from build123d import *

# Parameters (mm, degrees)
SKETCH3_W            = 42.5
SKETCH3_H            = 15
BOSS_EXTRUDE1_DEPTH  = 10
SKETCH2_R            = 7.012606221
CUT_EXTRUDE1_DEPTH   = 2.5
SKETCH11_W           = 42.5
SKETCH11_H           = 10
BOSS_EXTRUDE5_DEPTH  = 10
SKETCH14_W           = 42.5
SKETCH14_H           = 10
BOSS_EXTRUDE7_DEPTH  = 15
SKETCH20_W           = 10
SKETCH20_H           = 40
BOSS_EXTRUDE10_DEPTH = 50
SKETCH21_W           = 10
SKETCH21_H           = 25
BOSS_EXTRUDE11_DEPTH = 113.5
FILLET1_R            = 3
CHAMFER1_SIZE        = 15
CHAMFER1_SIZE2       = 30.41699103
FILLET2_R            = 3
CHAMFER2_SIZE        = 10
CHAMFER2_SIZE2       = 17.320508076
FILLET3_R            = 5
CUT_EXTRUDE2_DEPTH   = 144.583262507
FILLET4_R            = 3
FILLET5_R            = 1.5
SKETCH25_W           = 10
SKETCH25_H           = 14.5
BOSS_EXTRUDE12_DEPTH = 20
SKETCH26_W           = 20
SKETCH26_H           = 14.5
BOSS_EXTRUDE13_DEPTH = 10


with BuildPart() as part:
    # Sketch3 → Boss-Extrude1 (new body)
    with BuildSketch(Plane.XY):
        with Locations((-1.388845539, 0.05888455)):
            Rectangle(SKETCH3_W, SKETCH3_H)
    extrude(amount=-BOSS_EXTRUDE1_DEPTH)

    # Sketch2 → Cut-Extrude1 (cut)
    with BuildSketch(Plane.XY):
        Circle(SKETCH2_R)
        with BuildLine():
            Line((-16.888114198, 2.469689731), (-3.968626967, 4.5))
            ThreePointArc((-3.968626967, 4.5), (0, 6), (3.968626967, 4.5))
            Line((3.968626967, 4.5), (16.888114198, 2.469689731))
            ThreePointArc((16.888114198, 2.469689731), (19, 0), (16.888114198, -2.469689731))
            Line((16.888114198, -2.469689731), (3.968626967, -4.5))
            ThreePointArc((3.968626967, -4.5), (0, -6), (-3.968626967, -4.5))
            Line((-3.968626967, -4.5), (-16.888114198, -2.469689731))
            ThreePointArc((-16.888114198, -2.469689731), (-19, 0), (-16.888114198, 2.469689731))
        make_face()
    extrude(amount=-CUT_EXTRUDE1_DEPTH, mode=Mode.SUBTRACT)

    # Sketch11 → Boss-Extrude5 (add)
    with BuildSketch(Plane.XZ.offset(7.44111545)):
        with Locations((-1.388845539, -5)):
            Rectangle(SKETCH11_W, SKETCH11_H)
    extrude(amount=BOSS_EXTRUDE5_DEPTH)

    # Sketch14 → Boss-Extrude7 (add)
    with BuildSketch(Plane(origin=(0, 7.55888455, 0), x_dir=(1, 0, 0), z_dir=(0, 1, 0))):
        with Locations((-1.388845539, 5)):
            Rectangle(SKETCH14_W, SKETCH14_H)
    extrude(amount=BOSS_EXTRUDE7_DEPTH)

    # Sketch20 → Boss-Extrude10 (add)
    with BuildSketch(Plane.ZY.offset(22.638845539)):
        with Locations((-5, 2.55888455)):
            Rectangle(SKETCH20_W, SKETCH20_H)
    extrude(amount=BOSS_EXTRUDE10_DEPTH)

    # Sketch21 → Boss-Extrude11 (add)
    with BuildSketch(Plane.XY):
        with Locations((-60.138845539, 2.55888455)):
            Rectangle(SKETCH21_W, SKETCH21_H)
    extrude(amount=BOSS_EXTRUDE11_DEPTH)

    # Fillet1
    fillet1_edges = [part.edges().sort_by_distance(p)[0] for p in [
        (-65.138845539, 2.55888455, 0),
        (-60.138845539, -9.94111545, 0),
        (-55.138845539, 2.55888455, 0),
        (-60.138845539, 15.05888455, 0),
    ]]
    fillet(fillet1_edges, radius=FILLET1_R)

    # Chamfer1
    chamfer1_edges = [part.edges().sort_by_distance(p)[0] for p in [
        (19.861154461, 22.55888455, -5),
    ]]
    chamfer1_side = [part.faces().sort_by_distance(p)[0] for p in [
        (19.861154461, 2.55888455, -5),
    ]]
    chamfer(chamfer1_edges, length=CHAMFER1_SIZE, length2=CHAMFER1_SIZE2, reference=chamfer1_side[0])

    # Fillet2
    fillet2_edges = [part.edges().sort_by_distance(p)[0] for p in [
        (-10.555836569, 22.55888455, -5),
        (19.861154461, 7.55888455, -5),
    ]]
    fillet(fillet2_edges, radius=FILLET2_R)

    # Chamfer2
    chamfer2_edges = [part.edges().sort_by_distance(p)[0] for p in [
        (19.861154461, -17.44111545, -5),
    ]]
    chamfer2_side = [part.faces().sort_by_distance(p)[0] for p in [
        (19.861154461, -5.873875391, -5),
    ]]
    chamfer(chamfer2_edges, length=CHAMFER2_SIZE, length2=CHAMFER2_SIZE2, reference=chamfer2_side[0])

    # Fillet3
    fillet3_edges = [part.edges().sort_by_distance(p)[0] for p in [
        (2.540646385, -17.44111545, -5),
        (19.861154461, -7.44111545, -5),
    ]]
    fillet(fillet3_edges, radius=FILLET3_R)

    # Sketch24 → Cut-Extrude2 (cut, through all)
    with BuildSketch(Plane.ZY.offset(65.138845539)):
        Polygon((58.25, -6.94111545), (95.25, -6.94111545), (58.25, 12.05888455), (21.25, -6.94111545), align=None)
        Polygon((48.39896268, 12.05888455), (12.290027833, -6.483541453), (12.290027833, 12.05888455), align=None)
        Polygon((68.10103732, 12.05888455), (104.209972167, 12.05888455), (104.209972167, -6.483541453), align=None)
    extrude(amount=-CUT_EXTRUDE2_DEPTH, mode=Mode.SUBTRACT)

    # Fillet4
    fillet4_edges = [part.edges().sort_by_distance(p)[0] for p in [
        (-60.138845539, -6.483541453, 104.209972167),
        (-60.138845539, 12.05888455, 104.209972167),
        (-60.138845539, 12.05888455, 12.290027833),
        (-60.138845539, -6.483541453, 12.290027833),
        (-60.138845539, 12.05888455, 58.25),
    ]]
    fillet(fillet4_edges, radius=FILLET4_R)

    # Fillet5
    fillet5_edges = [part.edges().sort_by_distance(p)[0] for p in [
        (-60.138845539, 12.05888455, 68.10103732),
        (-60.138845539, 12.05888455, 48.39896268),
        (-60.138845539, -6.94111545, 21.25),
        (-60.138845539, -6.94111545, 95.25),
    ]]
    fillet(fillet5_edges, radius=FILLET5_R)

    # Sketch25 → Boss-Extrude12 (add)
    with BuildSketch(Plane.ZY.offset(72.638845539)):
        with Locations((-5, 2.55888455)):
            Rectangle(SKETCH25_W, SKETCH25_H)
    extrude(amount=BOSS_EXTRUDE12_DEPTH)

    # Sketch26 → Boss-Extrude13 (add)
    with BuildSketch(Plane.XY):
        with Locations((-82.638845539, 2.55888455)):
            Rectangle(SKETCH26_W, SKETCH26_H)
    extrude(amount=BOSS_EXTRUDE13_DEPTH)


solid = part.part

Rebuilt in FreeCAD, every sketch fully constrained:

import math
import FreeCAD as App
import Part
import Sketcher
from FreeCAD import Vector
Q = App.Units.Quantity


def edges_at(feature, points):
    """Names of the edges that pass closest to the given points."""
    edges = feature.Shape.Edges
    near = lambda p: min(range(len(edges)), key=lambda i: edges[i].distToShape(Part.Vertex(*p))[0])
    return sorted({f"Edge{near(p) + 1}" for p in points})

doc = App.newDocument("Part")
params = doc.addObject("Spreadsheet::Sheet", "Params")
for row, (alias, value) in enumerate([
    ("sketch1_height", "15 mm"),
    ("sketch1_width", "42.5 mm"),
    ("pad1_length", "10 mm"),
    ("sketch2_radius", "2.5 mm"),
    ("pocket1_length", "2.5 mm"),
    ("sketch3_height", "10 mm"),
    ("sketch3_width", "42.5 mm"),
    ("pad2_length", "10 mm"),
    ("sketch4_height", "10 mm"),
    ("sketch4_width", "42.5 mm"),
    ("pad3_length", "15 mm"),
    ("sketch5_width", "40 mm"),
    ("sketch5_height", "10 mm"),
    ("pad4_length", "50 mm"),
    ("sketch6_width", "10 mm"),
    ("sketch6_height", "25 mm"),
    ("pad5_length", "113.5 mm"),
    ("fillet_radius", "3 mm"),
    ("chamfer_size", "15 mm"),
    ("chamfer_size2", "30.416991 mm"),
    ("fillet2_radius", "3 mm"),
    ("chamfer2_size", "10 mm"),
    ("chamfer2_size2", "17.320508 mm"),
    ("fillet3_radius", "5 mm"),
    ("sketch7_height", "74 mm"),
    ("fillet4_radius", "3 mm"),
    ("fillet5_radius", "1.5 mm"),
    ("sketch8_height", "10 mm"),
    ("sketch8_width", "14.5 mm"),
    ("pad6_length", "20 mm"),
    ("sketch9_width", "20 mm"),
    ("sketch9_height", "14.5 mm"),
    ("pad7_length", "10 mm"),
], start=1):
    params.set(f"A{row}", alias)
    params.set(f"B{row}", "=" + value)
    params.setAlias(f"B{row}", alias)

body = doc.addObject("PartDesign::Body", "Body")

# Sketch on XY plane
sketch1 = body.newObject("Sketcher::SketchObject", "Sketch")
sketch1.AttachmentSupport = (doc.getObject("XY_Plane"), [""])
sketch1.MapMode = "FlatFace"
sketch1.addGeometry(Part.LineSegment(Vector(-23, 8, 0), Vector(-23, -7, 0)), False)
sketch1.addGeometry(Part.LineSegment(Vector(-23, -7, 0), Vector(20, -7, 0)), False)
sketch1.addGeometry(Part.LineSegment(Vector(20, -7, 0), Vector(20, 8, 0)), False)
sketch1.addGeometry(Part.LineSegment(Vector(20, 8, 0), Vector(-23, 8, 0)), False)
sketch1.addConstraint(Sketcher.Constraint("Coincident", 0, 2, 1, 1))
sketch1.addConstraint(Sketcher.Constraint("Coincident", 1, 2, 2, 1))
sketch1.addConstraint(Sketcher.Constraint("Coincident", 2, 2, 3, 1))
sketch1.addConstraint(Sketcher.Constraint("Coincident", 3, 2, 0, 1))
sketch1.addConstraint(Sketcher.Constraint("Vertical", 0))
sketch1.addConstraint(Sketcher.Constraint("Horizontal", 1))
sketch1.addConstraint(Sketcher.Constraint("Vertical", 2))
sketch1.addConstraint(Sketcher.Constraint("Horizontal", 3))
sketch1.addConstraint(Sketcher.Constraint("DistanceY", 0, 2, 0, 1, Q("15 mm")))
sketch1.addConstraint(Sketcher.Constraint("DistanceX", 1, 1, 1, 2, Q("42.5 mm")))
sketch1.addConstraint(Sketcher.Constraint("DistanceX", 0, 2, -1, 1, Q("22.638846 mm")))
sketch1.addConstraint(Sketcher.Constraint("DistanceY", 0, 2, -1, 1, Q("7.441115 mm")))
sketch1.setExpression("Constraints[8]", "Params.sketch1_height")
sketch1.setExpression("Constraints[9]", "Params.sketch1_width")
pad1 = body.newObject("PartDesign::Pad", "Pad")
pad1.Profile = sketch1
pad1.setExpression("Length", "Params.pad1_length")
pad1.Reversed = True

# Sketch on XY plane
sketch2 = body.newObject("Sketcher::SketchObject", "Sketch001")
sketch2.AttachmentSupport = (doc.getObject("XY_Plane"), [""])
sketch2.MapMode = "FlatFace"
sketch2.addGeometry(Part.ArcOfCircle(Part.Circle(Vector(16.5, 0, 0), Vector(0, 0, 1), 2.5), math.radians(-81), math.radians(81)), False)
sketch2.addGeometry(Part.LineSegment(Vector(16.9, 2.5, 0), Vector(5.6, 4.2, 0)), False)
sketch2.addGeometry(Part.ArcOfCircle(Part.Circle(Vector(0, 0, 0), Vector(0, 0, 1), 7), math.radians(37), math.radians(143)), False)
sketch2.addGeometry(Part.LineSegment(Vector(-5.6, 4.2, 0), Vector(-16.9, 2.5, 0)), False)
sketch2.addGeometry(Part.ArcOfCircle(Part.Circle(Vector(-16.5, 0, 0), Vector(0, 0, 1), 2.5), math.radians(99), math.radians(261)), False)
sketch2.addGeometry(Part.LineSegment(Vector(-16.9, -2.5, 0), Vector(-5.6, -4.2, 0)), False)
sketch2.addGeometry(Part.ArcOfCircle(Part.Circle(Vector(0, 0, 0), Vector(0, 0, 1), 7), math.radians(-143), math.radians(-37)), False)
sketch2.addGeometry(Part.LineSegment(Vector(5.6, -4.2, 0), Vector(16.9, -2.5, 0)), False)
sketch2.addConstraint(Sketcher.Constraint("Tangent", 0, 2, 1, 1))
sketch2.addConstraint(Sketcher.Constraint("Coincident", 1, 2, 2, 1))
sketch2.addConstraint(Sketcher.Constraint("Coincident", 2, 2, 3, 1))
sketch2.addConstraint(Sketcher.Constraint("Tangent", 3, 2, 4, 1))
sketch2.addConstraint(Sketcher.Constraint("Tangent", 4, 2, 5, 1))
sketch2.addConstraint(Sketcher.Constraint("Coincident", 5, 2, 6, 1))
sketch2.addConstraint(Sketcher.Constraint("Coincident", 6, 2, 7, 1))
sketch2.addConstraint(Sketcher.Constraint("Tangent", 7, 2, 0, 1))
sketch2.addConstraint(Sketcher.Constraint("Coincident", 2, 3, -1, 1))
sketch2.addConstraint(Sketcher.Constraint("Coincident", 6, 3, -1, 1))
sketch2.addConstraint(Sketcher.Constraint("Equal", 0, 4))
sketch2.addConstraint(Sketcher.Constraint("Equal", 2, 6))
sketch2.addConstraint(Sketcher.Constraint("Symmetric", 0, 3, 4, 3, -1, 1))
sketch2.addConstraint(Sketcher.Constraint("Symmetric", 0, 2, 3, 2, -2))
sketch2.addConstraint(Sketcher.Constraint("Parallel", 1, 5))
sketch2.addConstraint(Sketcher.Constraint("Parallel", 3, 7))
sketch2.addConstraint(Sketcher.Constraint("Radius", 0, Q("2.5 mm")))
sketch2.addConstraint(Sketcher.Constraint("DistanceX", 4, 3, 0, 3, Q("33 mm")))
sketch2.addConstraint(Sketcher.Constraint("Radius", 2, Q("7.012606 mm")))
sketch2.addConstraint(Sketcher.Constraint("DistanceY", 0, 2, 1, 2, Q("1.776999 mm")))
sketch2.setExpression("Constraints[16]", "Params.sketch2_radius")
pocket1 = body.newObject("PartDesign::Pocket", "Pocket")
pocket1.Profile = sketch2
pocket1.setExpression("Length", "Params.pocket1_length")

# Sketch on XZ plane
sketch3 = body.newObject("Sketcher::SketchObject", "Sketch002")
sketch3.AttachmentSupport = (doc.getObject("XZ_Plane"), [""])
sketch3.MapMode = "FlatFace"
sketch3.AttachmentOffset = App.Placement(Vector(0, 0, 7.441115), App.Rotation())
sketch3.addGeometry(Part.LineSegment(Vector(-23, 0, 0), Vector(-23, -10, 0)), False)
sketch3.addGeometry(Part.LineSegment(Vector(-23, -10, 0), Vector(20, -10, 0)), False)
sketch3.addGeometry(Part.LineSegment(Vector(20, -10, 0), Vector(20, 0, 0)), False)
sketch3.addGeometry(Part.LineSegment(Vector(20, 0, 0), Vector(-23, 0, 0)), False)
sketch3.addConstraint(Sketcher.Constraint("Coincident", 0, 2, 1, 1))
sketch3.addConstraint(Sketcher.Constraint("Coincident", 1, 2, 2, 1))
sketch3.addConstraint(Sketcher.Constraint("Coincident", 2, 2, 3, 1))
sketch3.addConstraint(Sketcher.Constraint("Coincident", 3, 2, 0, 1))
sketch3.addConstraint(Sketcher.Constraint("Vertical", 0))
sketch3.addConstraint(Sketcher.Constraint("Horizontal", 1))
sketch3.addConstraint(Sketcher.Constraint("Vertical", 2))
sketch3.addConstraint(Sketcher.Constraint("Horizontal", 3))
sketch3.addConstraint(Sketcher.Constraint("PointOnObject", 2, 2, -1))
sketch3.addConstraint(Sketcher.Constraint("DistanceY", 0, 2, 0, 1, Q("10 mm")))
sketch3.addConstraint(Sketcher.Constraint("DistanceX", 1, 1, 1, 2, Q("42.5 mm")))
sketch3.addConstraint(Sketcher.Constraint("DistanceX", 0, 2, -1, 1, Q("22.638846 mm")))
sketch3.setExpression("Constraints[9]", "Params.sketch3_height")
sketch3.setExpression("Constraints[10]", "Params.sketch3_width")
pad2 = body.newObject("PartDesign::Pad", "Pad001")
pad2.Profile = sketch3
pad2.setExpression("Length", "Params.pad2_length")

# Sketch on XZ plane
sketch4 = body.newObject("Sketcher::SketchObject", "Sketch003")
sketch4.AttachmentSupport = (doc.getObject("XZ_Plane"), [""])
sketch4.MapMode = "FlatFace"
sketch4.AttachmentOffset = App.Placement(Vector(0, 0, -7.558885), App.Rotation())
sketch4.addGeometry(Part.LineSegment(Vector(-23, -10, 0), Vector(-23, 0, 0)), False)
sketch4.addGeometry(Part.LineSegment(Vector(-23, 0, 0), Vector(20, 0, 0)), False)
sketch4.addGeometry(Part.LineSegment(Vector(20, 0, 0), Vector(20, -10, 0)), False)
sketch4.addGeometry(Part.LineSegment(Vector(20, -10, 0), Vector(-23, -10, 0)), False)
sketch4.addConstraint(Sketcher.Constraint("Coincident", 0, 2, 1, 1))
sketch4.addConstraint(Sketcher.Constraint("Coincident", 1, 2, 2, 1))
sketch4.addConstraint(Sketcher.Constraint("Coincident", 2, 2, 3, 1))
sketch4.addConstraint(Sketcher.Constraint("Coincident", 3, 2, 0, 1))
sketch4.addConstraint(Sketcher.Constraint("Vertical", 0))
sketch4.addConstraint(Sketcher.Constraint("Horizontal", 1))
sketch4.addConstraint(Sketcher.Constraint("Vertical", 2))
sketch4.addConstraint(Sketcher.Constraint("Horizontal", 3))
sketch4.addConstraint(Sketcher.Constraint("PointOnObject", 0, 2, -1))
sketch4.addConstraint(Sketcher.Constraint("DistanceY", 0, 1, 0, 2, Q("10 mm")))
sketch4.addConstraint(Sketcher.Constraint("DistanceX", 1, 1, 1, 2, Q("42.5 mm")))
sketch4.addConstraint(Sketcher.Constraint("DistanceX", 0, 2, -1, 1, Q("22.638846 mm")))
sketch4.setExpression("Constraints[9]", "Params.sketch4_height")
sketch4.setExpression("Constraints[10]", "Params.sketch4_width")
pad3 = body.newObject("PartDesign::Pad", "Pad002")
pad3.Profile = sketch4
pad3.setExpression("Length", "Params.pad3_length")
pad3.Reversed = True

# Sketch on YZ plane
sketch5 = body.newObject("Sketcher::SketchObject", "Sketch004")
sketch5.AttachmentSupport = (doc.getObject("YZ_Plane"), [""])
sketch5.MapMode = "FlatFace"
sketch5.AttachmentOffset = App.Placement(Vector(0, 0, -22.638846), App.Rotation())
sketch5.addGeometry(Part.LineSegment(Vector(23, -10, 0), Vector(-17, -10, 0)), False)
sketch5.addGeometry(Part.LineSegment(Vector(-17, -10, 0), Vector(-17, 0, 0)), False)
sketch5.addGeometry(Part.LineSegment(Vector(-17, 0, 0), Vector(23, 0, 0)), False)
sketch5.addGeometry(Part.LineSegment(Vector(23, 0, 0), Vector(23, -10, 0)), False)
sketch5.addConstraint(Sketcher.Constraint("Coincident", 0, 2, 1, 1))
sketch5.addConstraint(Sketcher.Constraint("Coincident", 1, 2, 2, 1))
sketch5.addConstraint(Sketcher.Constraint("Coincident", 2, 2, 3, 1))
sketch5.addConstraint(Sketcher.Constraint("Coincident", 3, 2, 0, 1))
sketch5.addConstraint(Sketcher.Constraint("Horizontal", 0))
sketch5.addConstraint(Sketcher.Constraint("Vertical", 1))
sketch5.addConstraint(Sketcher.Constraint("Horizontal", 2))
sketch5.addConstraint(Sketcher.Constraint("Vertical", 3))
sketch5.addConstraint(Sketcher.Constraint("PointOnObject", 1, 2, -1))
sketch5.addConstraint(Sketcher.Constraint("DistanceX", 0, 2, 0, 1, Q("40 mm")))
sketch5.addConstraint(Sketcher.Constraint("DistanceY", 1, 1, 1, 2, Q("10 mm")))
sketch5.addConstraint(Sketcher.Constraint("DistanceX", 0, 2, -1, 1, Q("17.441115 mm")))
sketch5.setExpression("Constraints[9]", "Params.sketch5_width")
sketch5.setExpression("Constraints[10]", "Params.sketch5_height")
pad4 = body.newObject("PartDesign::Pad", "Pad003")
pad4.Profile = sketch5
pad4.setExpression("Length", "Params.pad4_length")
pad4.Reversed = True

# Sketch on XY plane
sketch6 = body.newObject("Sketcher::SketchObject", "Sketch005")
sketch6.AttachmentSupport = (doc.getObject("XY_Plane"), [""])
sketch6.MapMode = "FlatFace"
sketch6.addGeometry(Part.LineSegment(Vector(-65, 15, 0), Vector(-65, -10, 0)), False)
sketch6.addGeometry(Part.LineSegment(Vector(-65, -10, 0), Vector(-55, -10, 0)), False)
sketch6.addGeometry(Part.LineSegment(Vector(-55, -10, 0), Vector(-55, 15, 0)), False)
sketch6.addGeometry(Part.LineSegment(Vector(-55, 15, 0), Vector(-65, 15, 0)), False)
sketch6.addConstraint(Sketcher.Constraint("Coincident", 0, 2, 1, 1))
sketch6.addConstraint(Sketcher.Constraint("Coincident", 1, 2, 2, 1))
sketch6.addConstraint(Sketcher.Constraint("Coincident", 2, 2, 3, 1))
sketch6.addConstraint(Sketcher.Constraint("Coincident", 3, 2, 0, 1))
sketch6.addConstraint(Sketcher.Constraint("Vertical", 0))
sketch6.addConstraint(Sketcher.Constraint("Horizontal", 1))
sketch6.addConstraint(Sketcher.Constraint("Vertical", 2))
sketch6.addConstraint(Sketcher.Constraint("Horizontal", 3))
sketch6.addConstraint(Sketcher.Constraint("DistanceX", 1, 1, 1, 2, Q("10 mm")))
sketch6.addConstraint(Sketcher.Constraint("DistanceY", 0, 2, 0, 1, Q("25 mm")))
sketch6.addConstraint(Sketcher.Constraint("DistanceX", 0, 2, -1, 1, Q("65.138846 mm")))
sketch6.addConstraint(Sketcher.Constraint("DistanceY", 0, 2, -1, 1, Q("9.941115 mm")))
sketch6.setExpression("Constraints[8]", "Params.sketch6_width")
sketch6.setExpression("Constraints[9]", "Params.sketch6_height")
pad5 = body.newObject("PartDesign::Pad", "Pad004")
pad5.Profile = sketch6
pad5.setExpression("Length", "Params.pad5_length")
doc.recompute()

fillet = body.newObject("PartDesign::Fillet", "Fillet")
fillet.Base = (pad5, edges_at(pad5, [
    (-65.139, 2.559, 0),
    (-60.139, -9.941, 0),
    (-55.139, 2.559, 0),
    (-60.139, 15.059, 0),
]))
fillet.setExpression("Radius", "Params.fillet_radius")
doc.recompute()

chamfer = body.newObject("PartDesign::Chamfer", "Chamfer")
chamfer.Base = (fillet, edges_at(fillet, [(19.861, 22.559, -5)]))
chamfer.ChamferType = "Two distances"
chamfer.setExpression("Size", "Params.chamfer_size")
chamfer.setExpression("Size2", "Params.chamfer_size2")
doc.recompute()

fillet2 = body.newObject("PartDesign::Fillet", "Fillet001")
fillet2.Base = (chamfer, edges_at(chamfer, [(-10.556, 22.559, -5), (19.861, 7.559, -5)]))
fillet2.setExpression("Radius", "Params.fillet2_radius")
doc.recompute()

chamfer2 = body.newObject("PartDesign::Chamfer", "Chamfer001")
chamfer2.Base = (fillet2, edges_at(fillet2, [(19.861, -17.441, -5)]))
chamfer2.ChamferType = "Two distances"
chamfer2.setExpression("Size", "Params.chamfer2_size")
chamfer2.setExpression("Size2", "Params.chamfer2_size2")
doc.recompute()

fillet3 = body.newObject("PartDesign::Fillet", "Fillet002")
fillet3.Base = (chamfer2, edges_at(chamfer2, [(2.541, -17.441, -5), (19.861, -7.441, -5)]))
fillet3.setExpression("Radius", "Params.fillet3_radius")

# Sketch on YZ plane
sketch7 = body.newObject("Sketcher::SketchObject", "Sketch006")
sketch7.AttachmentSupport = (doc.getObject("YZ_Plane"), [""])
sketch7.MapMode = "FlatFace"
sketch7.AttachmentOffset = App.Placement(Vector(0, 0, -65.138846), App.Rotation())
sketch7.addGeometry(Part.LineSegment(Vector(-7, 95, 0), Vector(12, 58, 0)), False)
sketch7.addGeometry(Part.LineSegment(Vector(12, 58, 0), Vector(-7, 21, 0)), False)
sketch7.addGeometry(Part.LineSegment(Vector(-7, 21, 0), Vector(-7, 95, 0)), False)
sketch7.addGeometry(Part.LineSegment(Vector(-6, 12, 0), Vector(12, 48, 0)), False)
sketch7.addGeometry(Part.LineSegment(Vector(12, 48, 0), Vector(12, 12, 0)), False)
sketch7.addGeometry(Part.LineSegment(Vector(12, 12, 0), Vector(-6, 12, 0)), False)
sketch7.addGeometry(Part.LineSegment(Vector(12, 104, 0), Vector(12, 68, 0)), False)
sketch7.addGeometry(Part.LineSegment(Vector(12, 68, 0), Vector(-6, 104, 0)), False)
sketch7.addGeometry(Part.LineSegment(Vector(-6, 104, 0), Vector(12, 104, 0)), False)
sketch7.addConstraint(Sketcher.Constraint("Coincident", 0, 2, 1, 1))
sketch7.addConstraint(Sketcher.Constraint("Coincident", 1, 2, 2, 1))
sketch7.addConstraint(Sketcher.Constraint("Coincident", 2, 2, 0, 1))
sketch7.addConstraint(Sketcher.Constraint("Coincident", 3, 2, 4, 1))
sketch7.addConstraint(Sketcher.Constraint("Coincident", 4, 2, 5, 1))
sketch7.addConstraint(Sketcher.Constraint("Coincident", 5, 2, 3, 1))
sketch7.addConstraint(Sketcher.Constraint("Coincident", 6, 2, 7, 1))
sketch7.addConstraint(Sketcher.Constraint("Coincident", 7, 2, 8, 1))
sketch7.addConstraint(Sketcher.Constraint("Coincident", 8, 2, 6, 1))
sketch7.addConstraint(Sketcher.Constraint("Vertical", 2))
sketch7.addConstraint(Sketcher.Constraint("Vertical", 4))
sketch7.addConstraint(Sketcher.Constraint("Horizontal", 5))
sketch7.addConstraint(Sketcher.Constraint("Vertical", 6))
sketch7.addConstraint(Sketcher.Constraint("Horizontal", 8))
sketch7.addConstraint(Sketcher.Constraint("Parallel", 1, 3))
sketch7.addConstraint(Sketcher.Constraint("Parallel", 0, 7))
sketch7.addConstraint(Sketcher.Constraint("Vertical", 0, 2, 3, 2))
sketch7.addConstraint(Sketcher.Constraint("Vertical", 4, 2, 6, 2))
sketch7.addConstraint(Sketcher.Constraint("Vertical", 5, 2, 7, 2))
sketch7.addConstraint(Sketcher.Constraint("Equal", 4, 6))
sketch7.addConstraint(Sketcher.Constraint("DistanceY", 2, 1, 2, 2, Q("74 mm")))
sketch7.addConstraint(Sketcher.Constraint("DistanceX", 1, 2, 0, 2, Q("19 mm")))
sketch7.addConstraint(Sketcher.Constraint("DistanceY", -1, 1, 0, 2, Q("58.25 mm")))
sketch7.addConstraint(Sketcher.Constraint("DistanceX", 5, 2, 5, 1, Q("18.542426 mm")))
sketch7.addConstraint(Sketcher.Constraint("DistanceX", 5, 2, -1, 1, Q("6.483541 mm")))
sketch7.addConstraint(Sketcher.Constraint("DistanceY", 4, 2, 6, 2, Q("55.811009 mm")))
sketch7.addConstraint(Sketcher.Constraint("DistanceY", -1, 1, 3, 2, Q("48.398963 mm")))
sketch7.setExpression("Constraints[20]", "Params.sketch7_height")
pocket2 = body.newObject("PartDesign::Pocket", "Pocket001")
pocket2.Profile = sketch7
pocket2.Type = "ThroughAll"
pocket2.Reversed = True
doc.recompute()

fillet4 = body.newObject("PartDesign::Fillet", "Fillet003")
fillet4.Base = (pocket2, edges_at(pocket2, [
    (-60.139, -6.484, 104.21),
    (-60.139, 12.059, 104.21),
    (-60.139, 12.059, 12.29),
    (-60.139, -6.484, 12.29),
    (-60.139, 12.059, 58.25),
]))
fillet4.setExpression("Radius", "Params.fillet4_radius")
doc.recompute()

fillet5 = body.newObject("PartDesign::Fillet", "Fillet004")
fillet5.Base = (fillet4, edges_at(fillet4, [
    (-60.139, 12.059, 68.101),
    (-60.139, 12.059, 48.399),
    (-60.139, -6.941, 21.25),
    (-60.139, -6.941, 95.25),
]))
fillet5.setExpression("Radius", "Params.fillet5_radius")

# Sketch on YZ plane
sketch8 = body.newObject("Sketcher::SketchObject", "Sketch007")
sketch8.AttachmentSupport = (doc.getObject("YZ_Plane"), [""])
sketch8.MapMode = "FlatFace"
sketch8.AttachmentOffset = App.Placement(Vector(0, 0, -72.638846), App.Rotation())
sketch8.addGeometry(Part.LineSegment(Vector(10, -10, 0), Vector(-5, -10, 0)), False)
sketch8.addGeometry(Part.LineSegment(Vector(-5, -10, 0), Vector(-5, 0, 0)), False)
sketch8.addGeometry(Part.LineSegment(Vector(-5, 0, 0), Vector(10, 0, 0)), False)
sketch8.addGeometry(Part.LineSegment(Vector(10, 0, 0), Vector(10, -10, 0)), False)
sketch8.addConstraint(Sketcher.Constraint("Coincident", 0, 2, 1, 1))
sketch8.addConstraint(Sketcher.Constraint("Coincident", 1, 2, 2, 1))
sketch8.addConstraint(Sketcher.Constraint("Coincident", 2, 2, 3, 1))
sketch8.addConstraint(Sketcher.Constraint("Coincident", 3, 2, 0, 1))
sketch8.addConstraint(Sketcher.Constraint("Horizontal", 0))
sketch8.addConstraint(Sketcher.Constraint("Vertical", 1))
sketch8.addConstraint(Sketcher.Constraint("Horizontal", 2))
sketch8.addConstraint(Sketcher.Constraint("Vertical", 3))
sketch8.addConstraint(Sketcher.Constraint("PointOnObject", 1, 2, -1))
sketch8.addConstraint(Sketcher.Constraint("DistanceY", 1, 1, 1, 2, Q("10 mm")))
sketch8.addConstraint(Sketcher.Constraint("DistanceX", 0, 2, 0, 1, Q("14.5 mm")))
sketch8.addConstraint(Sketcher.Constraint("DistanceX", 0, 2, -1, 1, Q("4.691115 mm")))
sketch8.setExpression("Constraints[9]", "Params.sketch8_height")
sketch8.setExpression("Constraints[10]", "Params.sketch8_width")
pad6 = body.newObject("PartDesign::Pad", "Pad005")
pad6.Profile = sketch8
pad6.setExpression("Length", "Params.pad6_length")
pad6.Reversed = True

# Sketch on XY plane
sketch9 = body.newObject("Sketcher::SketchObject", "Sketch008")
sketch9.AttachmentSupport = (doc.getObject("XY_Plane"), [""])
sketch9.MapMode = "FlatFace"
sketch9.addGeometry(Part.LineSegment(Vector(-93, 10, 0), Vector(-93, -5, 0)), False)
sketch9.addGeometry(Part.LineSegment(Vector(-93, -5, 0), Vector(-73, -5, 0)), False)
sketch9.addGeometry(Part.LineSegment(Vector(-73, -5, 0), Vector(-73, 10, 0)), False)
sketch9.addGeometry(Part.LineSegment(Vector(-73, 10, 0), Vector(-93, 10, 0)), False)
sketch9.addConstraint(Sketcher.Constraint("Coincident", 0, 2, 1, 1))
sketch9.addConstraint(Sketcher.Constraint("Coincident", 1, 2, 2, 1))
sketch9.addConstraint(Sketcher.Constraint("Coincident", 2, 2, 3, 1))
sketch9.addConstraint(Sketcher.Constraint("Coincident", 3, 2, 0, 1))
sketch9.addConstraint(Sketcher.Constraint("Vertical", 0))
sketch9.addConstraint(Sketcher.Constraint("Horizontal", 1))
sketch9.addConstraint(Sketcher.Constraint("Vertical", 2))
sketch9.addConstraint(Sketcher.Constraint("Horizontal", 3))
sketch9.addConstraint(Sketcher.Constraint("DistanceX", 1, 1, 1, 2, Q("20 mm")))
sketch9.addConstraint(Sketcher.Constraint("DistanceY", 0, 2, 0, 1, Q("14.5 mm")))
sketch9.addConstraint(Sketcher.Constraint("DistanceX", 0, 2, -1, 1, Q("92.638846 mm")))
sketch9.addConstraint(Sketcher.Constraint("DistanceY", 0, 2, -1, 1, Q("4.691115 mm")))
sketch9.setExpression("Constraints[8]", "Params.sketch9_width")
sketch9.setExpression("Constraints[9]", "Params.sketch9_height")
pad7 = body.newObject("PartDesign::Pad", "Pad006")
pad7.Profile = sketch9
pad7.setExpression("Length", "Params.pad7_length")

doc.recompute()
